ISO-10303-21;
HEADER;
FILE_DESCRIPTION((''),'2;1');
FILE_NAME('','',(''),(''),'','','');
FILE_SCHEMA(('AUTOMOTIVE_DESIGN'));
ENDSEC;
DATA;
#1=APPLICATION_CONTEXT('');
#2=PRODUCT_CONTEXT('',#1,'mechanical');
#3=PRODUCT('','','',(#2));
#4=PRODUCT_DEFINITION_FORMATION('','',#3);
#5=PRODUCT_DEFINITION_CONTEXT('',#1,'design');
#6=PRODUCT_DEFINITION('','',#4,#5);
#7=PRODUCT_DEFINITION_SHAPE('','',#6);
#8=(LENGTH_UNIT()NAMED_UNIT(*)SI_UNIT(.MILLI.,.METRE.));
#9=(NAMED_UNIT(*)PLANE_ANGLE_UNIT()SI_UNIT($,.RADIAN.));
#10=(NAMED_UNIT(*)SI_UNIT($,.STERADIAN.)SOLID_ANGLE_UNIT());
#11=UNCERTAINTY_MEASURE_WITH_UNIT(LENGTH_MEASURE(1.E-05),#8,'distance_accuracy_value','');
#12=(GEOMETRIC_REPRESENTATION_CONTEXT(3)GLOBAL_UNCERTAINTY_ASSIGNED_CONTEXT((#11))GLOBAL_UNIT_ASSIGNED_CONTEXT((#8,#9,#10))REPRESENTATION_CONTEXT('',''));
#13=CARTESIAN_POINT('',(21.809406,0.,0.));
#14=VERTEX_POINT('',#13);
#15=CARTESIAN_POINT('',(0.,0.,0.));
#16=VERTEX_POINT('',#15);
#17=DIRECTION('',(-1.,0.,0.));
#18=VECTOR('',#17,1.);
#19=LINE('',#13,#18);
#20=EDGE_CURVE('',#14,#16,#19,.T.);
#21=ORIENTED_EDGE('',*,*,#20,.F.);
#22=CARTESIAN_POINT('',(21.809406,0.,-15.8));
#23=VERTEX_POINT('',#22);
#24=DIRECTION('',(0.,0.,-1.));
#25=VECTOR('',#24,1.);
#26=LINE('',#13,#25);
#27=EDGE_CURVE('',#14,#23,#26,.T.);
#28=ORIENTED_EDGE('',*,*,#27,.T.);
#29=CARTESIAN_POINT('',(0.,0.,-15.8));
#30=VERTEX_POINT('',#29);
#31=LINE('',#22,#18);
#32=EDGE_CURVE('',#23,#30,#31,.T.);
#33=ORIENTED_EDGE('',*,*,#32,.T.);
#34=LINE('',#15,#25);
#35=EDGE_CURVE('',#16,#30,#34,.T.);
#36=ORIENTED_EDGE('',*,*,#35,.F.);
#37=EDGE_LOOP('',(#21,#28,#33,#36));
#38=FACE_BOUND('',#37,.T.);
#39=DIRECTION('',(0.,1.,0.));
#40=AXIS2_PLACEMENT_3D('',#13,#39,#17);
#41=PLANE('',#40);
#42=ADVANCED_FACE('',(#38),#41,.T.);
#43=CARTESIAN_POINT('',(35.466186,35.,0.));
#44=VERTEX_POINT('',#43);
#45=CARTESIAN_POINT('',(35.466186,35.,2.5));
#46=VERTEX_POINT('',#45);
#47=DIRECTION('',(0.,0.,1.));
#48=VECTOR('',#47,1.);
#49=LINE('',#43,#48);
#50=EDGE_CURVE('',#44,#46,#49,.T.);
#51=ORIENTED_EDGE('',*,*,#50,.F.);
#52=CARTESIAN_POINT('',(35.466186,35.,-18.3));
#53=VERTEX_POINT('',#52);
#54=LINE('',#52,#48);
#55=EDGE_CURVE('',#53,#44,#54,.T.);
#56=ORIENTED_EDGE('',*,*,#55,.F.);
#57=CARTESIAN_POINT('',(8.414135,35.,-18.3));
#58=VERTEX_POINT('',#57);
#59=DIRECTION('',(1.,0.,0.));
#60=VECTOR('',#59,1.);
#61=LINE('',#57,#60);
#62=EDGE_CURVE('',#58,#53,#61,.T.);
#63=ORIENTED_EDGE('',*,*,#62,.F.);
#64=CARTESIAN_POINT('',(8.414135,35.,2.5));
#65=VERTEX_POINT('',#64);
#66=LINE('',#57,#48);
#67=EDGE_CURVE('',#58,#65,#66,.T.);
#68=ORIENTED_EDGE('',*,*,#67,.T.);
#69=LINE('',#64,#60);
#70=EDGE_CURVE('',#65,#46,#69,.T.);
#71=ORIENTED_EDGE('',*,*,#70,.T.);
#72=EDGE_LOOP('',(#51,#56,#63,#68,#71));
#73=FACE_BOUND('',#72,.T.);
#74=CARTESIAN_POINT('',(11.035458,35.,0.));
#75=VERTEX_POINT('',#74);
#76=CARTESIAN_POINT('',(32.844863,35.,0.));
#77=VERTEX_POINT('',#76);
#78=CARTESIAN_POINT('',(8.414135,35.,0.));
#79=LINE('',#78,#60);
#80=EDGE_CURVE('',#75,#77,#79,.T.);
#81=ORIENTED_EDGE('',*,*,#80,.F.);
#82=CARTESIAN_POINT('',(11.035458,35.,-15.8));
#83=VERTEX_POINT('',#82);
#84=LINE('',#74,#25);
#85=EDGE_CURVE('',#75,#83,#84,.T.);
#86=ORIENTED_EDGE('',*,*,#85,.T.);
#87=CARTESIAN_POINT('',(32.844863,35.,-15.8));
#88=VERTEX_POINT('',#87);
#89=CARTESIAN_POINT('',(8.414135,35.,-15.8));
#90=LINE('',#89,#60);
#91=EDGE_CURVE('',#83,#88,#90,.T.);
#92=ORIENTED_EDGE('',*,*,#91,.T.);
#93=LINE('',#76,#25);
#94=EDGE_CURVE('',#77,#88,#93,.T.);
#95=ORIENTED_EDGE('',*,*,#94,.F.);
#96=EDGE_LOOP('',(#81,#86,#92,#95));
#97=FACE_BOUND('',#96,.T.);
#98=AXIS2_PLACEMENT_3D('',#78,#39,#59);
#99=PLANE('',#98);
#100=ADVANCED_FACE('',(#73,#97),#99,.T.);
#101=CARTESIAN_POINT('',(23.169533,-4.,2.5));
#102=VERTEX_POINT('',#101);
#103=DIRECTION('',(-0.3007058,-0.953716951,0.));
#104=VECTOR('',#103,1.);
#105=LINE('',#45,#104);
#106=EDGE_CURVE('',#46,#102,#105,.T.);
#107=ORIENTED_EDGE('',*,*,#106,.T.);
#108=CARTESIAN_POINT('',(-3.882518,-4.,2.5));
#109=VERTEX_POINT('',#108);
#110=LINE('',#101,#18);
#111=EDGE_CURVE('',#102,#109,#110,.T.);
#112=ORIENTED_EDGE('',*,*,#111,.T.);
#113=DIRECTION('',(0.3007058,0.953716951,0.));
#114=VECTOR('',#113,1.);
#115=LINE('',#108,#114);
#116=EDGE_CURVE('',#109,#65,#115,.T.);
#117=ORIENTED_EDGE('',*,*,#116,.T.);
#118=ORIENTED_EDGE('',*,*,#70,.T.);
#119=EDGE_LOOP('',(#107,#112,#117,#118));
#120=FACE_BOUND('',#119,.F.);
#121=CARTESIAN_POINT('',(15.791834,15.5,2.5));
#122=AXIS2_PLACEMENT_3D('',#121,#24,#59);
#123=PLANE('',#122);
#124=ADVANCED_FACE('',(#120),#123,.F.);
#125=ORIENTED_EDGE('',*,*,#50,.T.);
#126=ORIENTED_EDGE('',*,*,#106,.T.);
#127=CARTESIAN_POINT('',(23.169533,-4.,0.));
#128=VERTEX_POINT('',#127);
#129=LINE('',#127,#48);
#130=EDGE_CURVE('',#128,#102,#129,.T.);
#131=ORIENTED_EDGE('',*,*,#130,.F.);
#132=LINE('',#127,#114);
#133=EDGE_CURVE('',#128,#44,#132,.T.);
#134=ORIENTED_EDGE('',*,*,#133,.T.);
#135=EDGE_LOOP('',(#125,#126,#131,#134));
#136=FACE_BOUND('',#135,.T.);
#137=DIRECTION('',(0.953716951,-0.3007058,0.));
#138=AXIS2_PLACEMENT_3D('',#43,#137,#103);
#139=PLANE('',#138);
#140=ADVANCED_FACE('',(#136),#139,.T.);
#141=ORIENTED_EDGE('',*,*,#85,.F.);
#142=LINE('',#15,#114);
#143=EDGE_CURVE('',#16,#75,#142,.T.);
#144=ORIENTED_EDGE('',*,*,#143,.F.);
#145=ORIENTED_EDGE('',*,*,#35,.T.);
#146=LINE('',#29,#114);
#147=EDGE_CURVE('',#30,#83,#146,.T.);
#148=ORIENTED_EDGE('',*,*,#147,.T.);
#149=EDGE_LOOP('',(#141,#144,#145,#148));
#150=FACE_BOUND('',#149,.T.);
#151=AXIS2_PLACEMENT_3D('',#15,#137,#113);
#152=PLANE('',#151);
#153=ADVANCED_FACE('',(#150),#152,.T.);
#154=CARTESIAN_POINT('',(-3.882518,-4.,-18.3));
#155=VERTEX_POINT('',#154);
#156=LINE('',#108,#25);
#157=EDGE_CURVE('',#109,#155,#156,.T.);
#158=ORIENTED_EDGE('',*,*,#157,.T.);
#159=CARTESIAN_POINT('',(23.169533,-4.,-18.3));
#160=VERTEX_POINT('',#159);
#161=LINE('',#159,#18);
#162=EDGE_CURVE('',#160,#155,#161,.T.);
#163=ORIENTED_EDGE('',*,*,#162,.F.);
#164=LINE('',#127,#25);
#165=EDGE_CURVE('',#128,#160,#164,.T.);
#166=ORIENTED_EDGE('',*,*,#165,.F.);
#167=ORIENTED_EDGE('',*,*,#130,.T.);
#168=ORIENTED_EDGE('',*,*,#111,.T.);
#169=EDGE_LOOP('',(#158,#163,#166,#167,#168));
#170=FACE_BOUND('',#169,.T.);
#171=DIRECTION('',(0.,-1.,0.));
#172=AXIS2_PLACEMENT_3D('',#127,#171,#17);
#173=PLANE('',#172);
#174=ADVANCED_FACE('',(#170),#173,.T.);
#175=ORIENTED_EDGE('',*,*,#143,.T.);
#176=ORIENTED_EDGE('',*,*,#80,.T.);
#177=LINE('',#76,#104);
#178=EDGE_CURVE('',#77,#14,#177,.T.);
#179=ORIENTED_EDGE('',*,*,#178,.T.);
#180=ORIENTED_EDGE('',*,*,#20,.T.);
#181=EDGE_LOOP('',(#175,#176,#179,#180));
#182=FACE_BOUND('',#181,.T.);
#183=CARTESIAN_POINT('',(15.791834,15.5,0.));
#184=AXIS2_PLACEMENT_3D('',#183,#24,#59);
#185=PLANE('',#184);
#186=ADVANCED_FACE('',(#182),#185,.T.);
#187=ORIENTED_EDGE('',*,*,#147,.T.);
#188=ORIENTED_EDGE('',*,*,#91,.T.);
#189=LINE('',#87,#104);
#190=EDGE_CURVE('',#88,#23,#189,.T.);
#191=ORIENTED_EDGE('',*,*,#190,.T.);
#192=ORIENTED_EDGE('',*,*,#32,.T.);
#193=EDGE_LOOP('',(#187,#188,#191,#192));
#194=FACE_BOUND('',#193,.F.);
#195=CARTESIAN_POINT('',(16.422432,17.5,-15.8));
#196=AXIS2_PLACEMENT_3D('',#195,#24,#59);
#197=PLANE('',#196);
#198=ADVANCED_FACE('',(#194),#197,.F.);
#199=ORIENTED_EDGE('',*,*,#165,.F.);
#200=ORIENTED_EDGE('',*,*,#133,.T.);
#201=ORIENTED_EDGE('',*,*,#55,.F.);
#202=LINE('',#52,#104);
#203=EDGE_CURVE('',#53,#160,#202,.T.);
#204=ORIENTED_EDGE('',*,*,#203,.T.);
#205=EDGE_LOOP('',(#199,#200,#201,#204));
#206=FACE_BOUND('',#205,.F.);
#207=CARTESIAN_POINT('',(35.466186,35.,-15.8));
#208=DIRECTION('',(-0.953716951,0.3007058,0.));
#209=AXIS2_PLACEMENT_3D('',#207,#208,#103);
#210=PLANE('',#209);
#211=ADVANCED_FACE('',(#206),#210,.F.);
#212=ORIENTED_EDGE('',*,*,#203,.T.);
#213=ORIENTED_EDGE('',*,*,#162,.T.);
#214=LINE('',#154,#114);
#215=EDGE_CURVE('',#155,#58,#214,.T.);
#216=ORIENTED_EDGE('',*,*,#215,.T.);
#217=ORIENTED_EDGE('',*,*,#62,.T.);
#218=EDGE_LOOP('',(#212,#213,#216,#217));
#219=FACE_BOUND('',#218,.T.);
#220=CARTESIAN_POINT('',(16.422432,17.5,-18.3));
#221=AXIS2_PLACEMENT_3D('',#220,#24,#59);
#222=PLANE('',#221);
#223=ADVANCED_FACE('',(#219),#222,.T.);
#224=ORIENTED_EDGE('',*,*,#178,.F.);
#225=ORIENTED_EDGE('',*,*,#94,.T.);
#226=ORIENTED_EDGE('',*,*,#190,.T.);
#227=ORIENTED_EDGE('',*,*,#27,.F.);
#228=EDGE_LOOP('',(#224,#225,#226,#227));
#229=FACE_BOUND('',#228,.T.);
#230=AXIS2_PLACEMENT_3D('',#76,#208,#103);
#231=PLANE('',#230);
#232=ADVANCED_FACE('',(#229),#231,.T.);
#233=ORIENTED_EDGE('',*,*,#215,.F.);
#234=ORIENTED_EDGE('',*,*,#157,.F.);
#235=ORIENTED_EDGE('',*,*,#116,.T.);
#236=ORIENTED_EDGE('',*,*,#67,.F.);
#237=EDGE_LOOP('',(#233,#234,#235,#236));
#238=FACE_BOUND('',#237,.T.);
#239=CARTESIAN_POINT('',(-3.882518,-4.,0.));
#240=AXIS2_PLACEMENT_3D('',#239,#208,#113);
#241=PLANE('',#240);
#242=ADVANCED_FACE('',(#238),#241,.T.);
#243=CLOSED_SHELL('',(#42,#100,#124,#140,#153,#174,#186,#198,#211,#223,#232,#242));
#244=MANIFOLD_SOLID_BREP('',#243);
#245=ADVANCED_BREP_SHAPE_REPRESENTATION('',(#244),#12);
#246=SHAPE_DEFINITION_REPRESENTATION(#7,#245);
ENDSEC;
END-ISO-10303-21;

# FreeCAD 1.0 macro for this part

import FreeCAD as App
import Part
import Sketcher
Q = App.Units.Quantity


def add_polygon(sketch, points):
    """Adds a closed chain of lines whose ends are joined by coincident constraints."""
    first, n = sketch.GeometryCount, len(points)
    for a, b in zip(points, points[1:] + points[:1]):
        sketch.addGeometry(Part.LineSegment(App.Vector(*a, 0), App.Vector(*b, 0)), False)
    for i in range(n):
        sketch.addConstraint(Sketcher.Constraint("Coincident", first + i, 2, first + (i + 1) % n, 1))

doc = App.newDocument("Part")
body = doc.addObject("PartDesign::Body", "Body")

# Sketch on XY plane
sketch1 = body.newObject("Sketcher::SketchObject", "Sketch")
sketch1.AttachmentSupport = (doc.getObject("XY_Plane"), [""])
sketch1.MapMode = "FlatFace"
add_polygon(sketch1, [(21.809406, 0), (0, 0), (11.035458, 35), (8.414135, 35), (-3.882518, -4), (23.169533, -4), (35.466186, 35), (32.844863, 35)])  # lines 0-7
sketch1.addConstraint([
    Sketcher.Constraint("Horizontal", 0),
    Sketcher.Constraint("Horizontal", 2),
    Sketcher.Constraint("Horizontal", 4),
    Sketcher.Constraint("Horizontal", 6),
    Sketcher.Constraint("Coincident", 0, 2, -1, 1),
    Sketcher.Constraint("Parallel", 1, 3),
    Sketcher.Constraint("Parallel", 3, 5),
    Sketcher.Constraint("Parallel", 5, 7),
    Sketcher.Constraint("Horizontal", 2, 2, 5, 2),
    Sketcher.Constraint("Equal", 2, 6),
    Sketcher.Constraint("DistanceY", -1, 1, 1, 2, 35.0),
    Sketcher.Constraint("DistanceY", 3, 2, -1, 1, 4.0),
    Sketcher.Constraint("Angle", 1, Q("72.5 deg")),
    Sketcher.Constraint("DistanceX", 4, 1, 4, 2, 27.052051),
    Sketcher.Constraint("DistanceX", 0, 2, 0, 1, 21.809406),
])
pad1 = body.newObject("PartDesign::Pad", "Pad")
pad1.Profile = sketch1
pad1.Length = 15.8
pad1.Reversed = True

# Sketch on XY plane
sketch2 = body.newObject("Sketcher::SketchObject", "Sketch001")
sketch2.AttachmentSupport = (doc.getObject("XY_Plane"), [""])
sketch2.MapMode = "FlatFace"
sketch2.AttachmentOffset = App.Placement(App.Vector(0, 0, -15.8), App.Rotation())
add_polygon(sketch2, [(35.466186, 35), (23.169533, -4), (-3.882518, -4), (8.414135, 35)])  # lines 0-3
sketch2.addConstraint([
    Sketcher.Constraint("Horizontal", 1),
    Sketcher.Constraint("Horizontal", 3),
    Sketcher.Constraint("Parallel", 0, 2),
    Sketcher.Constraint("DistanceY", 0, 2, -1, 1, 4.0),
    Sketcher.Constraint("DistanceY", -1, 1, 2, 2, 35.0),
    Sketcher.Constraint("Angle", 0, Q("-107.5 deg")),
    Sketcher.Constraint("DistanceX", 1, 2, 1, 1, 27.052051),
    Sketcher.Constraint("DistanceX", -1, 1, 0, 2, 23.169533),
])
pad2 = body.newObject("PartDesign::Pad", "Pad001")
pad2.Profile = sketch2
pad2.Length = 2.5
pad2.Reversed = True

# Sketch on XY plane
sketch3 = body.newObject("Sketcher::SketchObject", "Sketch002")
sketch3.AttachmentSupport = (doc.getObject("XY_Plane"), [""])
sketch3.MapMode = "FlatFace"
add_polygon(sketch3, [(35.466186, 35), (23.169533, -4), (-3.882518, -4), (8.414135, 35)])  # lines 0-3
sketch3.addConstraint([
    Sketcher.Constraint("Horizontal", 1),
    Sketcher.Constraint("Horizontal", 3),
    Sketcher.Constraint("Parallel", 0, 2),
    Sketcher.Constraint("DistanceY", 0, 2, -1, 1, 4.0),
    Sketcher.Constraint("DistanceY", -1, 1, 2, 2, 35.0),
    Sketcher.Constraint("Angle", 0, Q("-107.5 deg")),
    Sketcher.Constraint("DistanceX", 1, 2, 1, 1, 27.052051),
    Sketcher.Constraint("DistanceX", -1, 1, 0, 2, 23.169533),
])
pad3 = body.newObject("PartDesign::Pad", "Pad002")
pad3.Profile = sketch3
pad3.Length = 2.5

doc.recompute()
